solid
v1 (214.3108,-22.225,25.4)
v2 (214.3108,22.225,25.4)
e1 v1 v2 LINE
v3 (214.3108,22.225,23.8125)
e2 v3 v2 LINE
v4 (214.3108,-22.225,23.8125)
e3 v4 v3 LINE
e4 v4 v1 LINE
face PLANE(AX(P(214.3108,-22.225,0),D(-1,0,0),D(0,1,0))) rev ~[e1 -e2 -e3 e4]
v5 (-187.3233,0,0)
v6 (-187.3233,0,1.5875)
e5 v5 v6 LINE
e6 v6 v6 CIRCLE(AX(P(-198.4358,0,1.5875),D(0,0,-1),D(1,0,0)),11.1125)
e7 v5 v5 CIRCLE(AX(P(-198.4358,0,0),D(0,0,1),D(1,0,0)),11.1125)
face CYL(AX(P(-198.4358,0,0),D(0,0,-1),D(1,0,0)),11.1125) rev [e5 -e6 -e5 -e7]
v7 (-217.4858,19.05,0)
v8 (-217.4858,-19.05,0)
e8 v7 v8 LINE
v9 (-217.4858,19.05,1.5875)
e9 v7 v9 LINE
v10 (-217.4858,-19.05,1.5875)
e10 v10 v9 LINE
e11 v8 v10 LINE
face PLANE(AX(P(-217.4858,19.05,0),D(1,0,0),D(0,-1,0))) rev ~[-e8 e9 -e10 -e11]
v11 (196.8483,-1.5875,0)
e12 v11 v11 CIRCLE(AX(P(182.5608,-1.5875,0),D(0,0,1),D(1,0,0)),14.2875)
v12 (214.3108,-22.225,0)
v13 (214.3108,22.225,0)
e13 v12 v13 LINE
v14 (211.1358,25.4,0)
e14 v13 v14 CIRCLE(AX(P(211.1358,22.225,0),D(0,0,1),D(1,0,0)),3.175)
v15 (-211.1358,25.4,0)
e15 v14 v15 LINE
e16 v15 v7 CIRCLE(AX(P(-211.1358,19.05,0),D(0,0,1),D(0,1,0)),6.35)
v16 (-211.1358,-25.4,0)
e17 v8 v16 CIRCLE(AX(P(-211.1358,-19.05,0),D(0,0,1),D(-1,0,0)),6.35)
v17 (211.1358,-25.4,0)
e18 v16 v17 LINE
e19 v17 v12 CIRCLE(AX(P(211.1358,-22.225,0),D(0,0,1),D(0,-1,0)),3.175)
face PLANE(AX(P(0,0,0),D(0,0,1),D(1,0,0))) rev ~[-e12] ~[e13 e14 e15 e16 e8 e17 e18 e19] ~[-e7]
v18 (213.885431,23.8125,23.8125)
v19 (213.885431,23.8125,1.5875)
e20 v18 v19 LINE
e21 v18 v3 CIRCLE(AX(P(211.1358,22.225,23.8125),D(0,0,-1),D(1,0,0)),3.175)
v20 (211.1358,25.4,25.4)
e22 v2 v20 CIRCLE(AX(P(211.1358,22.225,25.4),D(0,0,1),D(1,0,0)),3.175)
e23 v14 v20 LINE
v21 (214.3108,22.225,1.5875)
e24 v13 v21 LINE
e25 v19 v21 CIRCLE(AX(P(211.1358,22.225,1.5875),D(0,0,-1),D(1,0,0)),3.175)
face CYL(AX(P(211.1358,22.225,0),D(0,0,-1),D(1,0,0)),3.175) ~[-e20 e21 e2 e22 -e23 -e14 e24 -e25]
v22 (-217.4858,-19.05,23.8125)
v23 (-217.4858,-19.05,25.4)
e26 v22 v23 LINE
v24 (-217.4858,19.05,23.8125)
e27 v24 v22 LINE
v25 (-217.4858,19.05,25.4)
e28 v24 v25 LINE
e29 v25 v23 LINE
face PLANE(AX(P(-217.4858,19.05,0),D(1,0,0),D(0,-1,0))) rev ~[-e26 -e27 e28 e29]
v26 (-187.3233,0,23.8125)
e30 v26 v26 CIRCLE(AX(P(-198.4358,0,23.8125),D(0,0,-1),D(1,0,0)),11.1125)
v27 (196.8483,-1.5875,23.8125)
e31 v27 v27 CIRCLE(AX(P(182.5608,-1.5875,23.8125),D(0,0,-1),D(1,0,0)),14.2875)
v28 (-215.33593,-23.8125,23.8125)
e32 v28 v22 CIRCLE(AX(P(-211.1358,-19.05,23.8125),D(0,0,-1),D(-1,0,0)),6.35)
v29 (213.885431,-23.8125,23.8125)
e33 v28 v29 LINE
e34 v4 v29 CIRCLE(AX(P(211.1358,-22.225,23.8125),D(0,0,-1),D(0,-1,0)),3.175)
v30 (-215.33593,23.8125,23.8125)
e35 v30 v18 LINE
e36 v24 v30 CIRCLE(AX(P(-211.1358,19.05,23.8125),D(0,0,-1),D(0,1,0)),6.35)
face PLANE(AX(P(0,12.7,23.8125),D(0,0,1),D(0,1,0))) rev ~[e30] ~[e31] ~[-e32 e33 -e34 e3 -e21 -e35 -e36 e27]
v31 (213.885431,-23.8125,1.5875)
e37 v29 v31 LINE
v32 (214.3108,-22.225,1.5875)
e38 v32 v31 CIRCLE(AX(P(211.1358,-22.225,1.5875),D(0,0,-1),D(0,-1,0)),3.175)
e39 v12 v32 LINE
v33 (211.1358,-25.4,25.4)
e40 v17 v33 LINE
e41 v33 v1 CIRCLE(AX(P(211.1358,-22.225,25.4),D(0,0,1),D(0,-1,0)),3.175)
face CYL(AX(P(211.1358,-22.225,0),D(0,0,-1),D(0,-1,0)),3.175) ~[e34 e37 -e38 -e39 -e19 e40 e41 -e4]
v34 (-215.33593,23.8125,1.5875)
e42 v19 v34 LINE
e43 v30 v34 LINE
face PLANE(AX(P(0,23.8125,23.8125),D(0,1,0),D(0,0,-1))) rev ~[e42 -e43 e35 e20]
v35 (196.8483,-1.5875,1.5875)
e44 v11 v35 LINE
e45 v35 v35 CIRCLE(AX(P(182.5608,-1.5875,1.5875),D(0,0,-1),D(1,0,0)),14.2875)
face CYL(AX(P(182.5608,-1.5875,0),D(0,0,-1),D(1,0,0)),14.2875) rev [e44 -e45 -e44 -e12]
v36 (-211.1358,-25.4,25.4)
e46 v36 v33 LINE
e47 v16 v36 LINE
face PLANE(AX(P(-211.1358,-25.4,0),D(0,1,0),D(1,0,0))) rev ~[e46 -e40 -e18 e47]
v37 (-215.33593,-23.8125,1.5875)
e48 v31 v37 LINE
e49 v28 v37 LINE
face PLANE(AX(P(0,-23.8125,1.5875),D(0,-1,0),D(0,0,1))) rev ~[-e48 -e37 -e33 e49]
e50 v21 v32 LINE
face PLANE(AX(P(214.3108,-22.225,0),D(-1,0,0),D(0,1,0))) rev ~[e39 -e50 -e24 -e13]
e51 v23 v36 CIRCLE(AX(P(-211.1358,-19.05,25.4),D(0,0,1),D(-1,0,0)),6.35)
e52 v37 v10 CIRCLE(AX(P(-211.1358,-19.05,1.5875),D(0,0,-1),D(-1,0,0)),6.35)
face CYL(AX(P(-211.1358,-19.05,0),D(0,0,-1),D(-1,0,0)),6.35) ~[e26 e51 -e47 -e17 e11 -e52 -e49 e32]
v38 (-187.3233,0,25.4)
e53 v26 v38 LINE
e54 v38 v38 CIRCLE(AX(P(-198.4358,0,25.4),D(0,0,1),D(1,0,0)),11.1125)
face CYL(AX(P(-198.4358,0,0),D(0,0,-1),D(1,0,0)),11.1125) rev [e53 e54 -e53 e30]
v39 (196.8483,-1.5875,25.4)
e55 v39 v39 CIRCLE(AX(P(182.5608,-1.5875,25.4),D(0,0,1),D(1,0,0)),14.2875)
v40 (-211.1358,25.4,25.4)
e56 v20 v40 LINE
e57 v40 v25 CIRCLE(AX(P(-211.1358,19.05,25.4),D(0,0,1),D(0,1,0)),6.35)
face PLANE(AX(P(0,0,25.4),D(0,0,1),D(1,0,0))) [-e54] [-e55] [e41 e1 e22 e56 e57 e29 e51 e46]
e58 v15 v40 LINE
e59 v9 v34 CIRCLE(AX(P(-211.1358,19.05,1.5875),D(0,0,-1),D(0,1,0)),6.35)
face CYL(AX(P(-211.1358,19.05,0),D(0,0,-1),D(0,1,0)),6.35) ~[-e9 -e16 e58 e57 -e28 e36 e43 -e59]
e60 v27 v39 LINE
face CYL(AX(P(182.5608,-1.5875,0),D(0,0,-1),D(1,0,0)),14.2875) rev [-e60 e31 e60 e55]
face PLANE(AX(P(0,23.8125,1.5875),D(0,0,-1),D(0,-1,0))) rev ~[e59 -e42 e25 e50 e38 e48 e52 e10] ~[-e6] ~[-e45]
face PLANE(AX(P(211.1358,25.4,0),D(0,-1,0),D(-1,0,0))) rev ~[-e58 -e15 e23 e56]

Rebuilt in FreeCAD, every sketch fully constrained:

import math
import FreeCAD as App
import Part
import Sketcher
from FreeCAD import Vector
Q = App.Units.Quantity

doc = App.newDocument("Part")
body = doc.addObject("PartDesign::Body", "Body")

# Sketch on XY plane
sketch1 = doc.addObject("Sketcher::SketchObject", "Sketch")
body.addObject(sketch1)
sketch1.AttachmentSupport = (doc.XY_Plane, [""])
sketch1.MapMode = "FlatFace"
sketch1.addGeometry([
    Part.ArcOfCircle(Part.Circle(Vector(-211.1, -19.1, 0), Vector(0, 0, 1), 6.4), math.radians(180), math.radians(270)),  # 0
    Part.LineSegment(Vector(-211.1, -25.4, 0), Vector(211.1, -25.4, 0)),  # 1
    Part.ArcOfCircle(Part.Circle(Vector(211.1, -22.2, 0), Vector(0, 0, 1), 3.2), math.radians(-90), math.radians(0)),  # 2
    Part.LineSegment(Vector(214.3, -22.2, 0), Vector(214.3, 22.2, 0)),  # 3
    Part.ArcOfCircle(Part.Circle(Vector(211.1, 22.2, 0), Vector(0, 0, 1), 3.2), math.radians(0), math.radians(90)),  # 4
    Part.LineSegment(Vector(211.1, 25.4, 0), Vector(-211.1, 25.4, 0)),  # 5
    Part.ArcOfCircle(Part.Circle(Vector(-211.1, 19.1, 0), Vector(0, 0, 1), 6.3), math.radians(90), math.radians(180)),  # 6
    Part.LineSegment(Vector(-217.5, 19.1, 0), Vector(-217.5, -19.1, 0)),  # 7
    Part.Circle(Vector(182.6, -1.6, 0), Vector(0, 0, 1), 14.3),  # 8
    Part.Circle(Vector(-198.4, 0, 0), Vector(0, 0, 1), 11.1),  # 9
], False)
sketch1.addConstraint([
    Sketcher.Constraint("Tangent", 0, 2, 1, 1),
    Sketcher.Constraint("Tangent", 1, 2, 2, 1),
    Sketcher.Constraint("Tangent", 2, 2, 3, 1),
    Sketcher.Constraint("Tangent", 3, 2, 4, 1),
    Sketcher.Constraint("Tangent", 4, 2, 5, 1),
    Sketcher.Constraint("Tangent", 5, 2, 6, 1),
    Sketcher.Constraint("Tangent", 6, 2, 7, 1),
    Sketcher.Constraint("Tangent", 7, 2, 0, 1),
    Sketcher.Constraint("Horizontal", 1),
    Sketcher.Constraint("Vertical", 3),
    Sketcher.Constraint("Horizontal", 5),
    Sketcher.Constraint("Vertical", 7),
    Sketcher.Constraint("Equal", 2, 4),
    Sketcher.Constraint("Equal", 0, 6),
    Sketcher.Constraint("Symmetric", 0, 2, 4, 2, -1, 1),
    Sketcher.Constraint("PointOnObject", 9, 3, -1),
    Sketcher.Constraint("Radius", 0, Q("0.25 in")),
    Sketcher.Constraint("Diameter", 8, Q("1.125 in")),
    Sketcher.Constraint("Diameter", 9, Q("0.875 in")),
    Sketcher.Constraint("Radius", 2, Q("0.125 in")),
    Sketcher.Constraint("DistanceY", 0, 2, 5, 2, Q("2 in")),
    Sketcher.Constraint("DistanceX", 8, 3, 2, 2, Q("1.25 in")),
    Sketcher.Constraint("DistanceX", 6, 2, 9, 3, Q("0.75 in")),
    Sketcher.Constraint("DistanceY", 8, 3, 4, 3, Q("0.9375 in")),
    Sketcher.Constraint("DistanceX", 9, 3, 8, 3, Q("380.9966 mm")),
])
pad1 = doc.addObject("PartDesign::Pad", "Pad")
body.addObject(pad1)
pad1.Profile = sketch1
pad1.Length = Q("1 in")

# Sketch on YZ plane
sketch2 = doc.addObject("Sketcher::SketchObject", "Sketch001")
body.addObject(sketch2)
sketch2.AttachmentSupport = (doc.YZ_Plane, [""])
sketch2.MapMode = "FlatFace"
sketch2.addGeometry([
    Part.LineSegment(Vector(24, 2, 0), Vector(24, 24, 0)),
    Part.LineSegment(Vector(24, 24, 0), Vector(-24, 24, 0)),
    Part.LineSegment(Vector(-24, 24, 0), Vector(-24, 2, 0)),
    Part.LineSegment(Vector(-24, 2, 0), Vector(24, 2, 0)),
], False)
sketch2.addConstraint([
    Sketcher.Constraint("Coincident", 0, 2, 1, 1),
    Sketcher.Constraint("Coincident", 1, 2, 2, 1),
    Sketcher.Constraint("Coincident", 2, 2, 3, 1),
    Sketcher.Constraint("Coincident", 3, 2, 0, 1),
    Sketcher.Constraint("Vertical", 0),
    Sketcher.Constraint("Horizontal", 1),
    Sketcher.Constraint("Vertical", 2),
    Sketcher.Constraint("Horizontal", 3),
    Sketcher.Constraint("DistanceY", -1, 1, 2, 2, Q("0.0625 in")),
    Sketcher.Constraint("DistanceX", 1, 2, 1, 1, Q("1.875 in")),
    Sketcher.Constraint("DistanceY", 0, 1, 0, 2, Q("0.875 in")),
    Sketcher.Constraint("DistanceX", -1, 1, 0, 2, Q("0.9375 in")),
])
pocket1 = doc.addObject("PartDesign::Pocket", "Pocket")
body.addObject(pocket1)
pocket1.Profile = sketch2
pocket1.Type = "ThroughAll"
pocket1.Midplane = True

doc.recompute()
